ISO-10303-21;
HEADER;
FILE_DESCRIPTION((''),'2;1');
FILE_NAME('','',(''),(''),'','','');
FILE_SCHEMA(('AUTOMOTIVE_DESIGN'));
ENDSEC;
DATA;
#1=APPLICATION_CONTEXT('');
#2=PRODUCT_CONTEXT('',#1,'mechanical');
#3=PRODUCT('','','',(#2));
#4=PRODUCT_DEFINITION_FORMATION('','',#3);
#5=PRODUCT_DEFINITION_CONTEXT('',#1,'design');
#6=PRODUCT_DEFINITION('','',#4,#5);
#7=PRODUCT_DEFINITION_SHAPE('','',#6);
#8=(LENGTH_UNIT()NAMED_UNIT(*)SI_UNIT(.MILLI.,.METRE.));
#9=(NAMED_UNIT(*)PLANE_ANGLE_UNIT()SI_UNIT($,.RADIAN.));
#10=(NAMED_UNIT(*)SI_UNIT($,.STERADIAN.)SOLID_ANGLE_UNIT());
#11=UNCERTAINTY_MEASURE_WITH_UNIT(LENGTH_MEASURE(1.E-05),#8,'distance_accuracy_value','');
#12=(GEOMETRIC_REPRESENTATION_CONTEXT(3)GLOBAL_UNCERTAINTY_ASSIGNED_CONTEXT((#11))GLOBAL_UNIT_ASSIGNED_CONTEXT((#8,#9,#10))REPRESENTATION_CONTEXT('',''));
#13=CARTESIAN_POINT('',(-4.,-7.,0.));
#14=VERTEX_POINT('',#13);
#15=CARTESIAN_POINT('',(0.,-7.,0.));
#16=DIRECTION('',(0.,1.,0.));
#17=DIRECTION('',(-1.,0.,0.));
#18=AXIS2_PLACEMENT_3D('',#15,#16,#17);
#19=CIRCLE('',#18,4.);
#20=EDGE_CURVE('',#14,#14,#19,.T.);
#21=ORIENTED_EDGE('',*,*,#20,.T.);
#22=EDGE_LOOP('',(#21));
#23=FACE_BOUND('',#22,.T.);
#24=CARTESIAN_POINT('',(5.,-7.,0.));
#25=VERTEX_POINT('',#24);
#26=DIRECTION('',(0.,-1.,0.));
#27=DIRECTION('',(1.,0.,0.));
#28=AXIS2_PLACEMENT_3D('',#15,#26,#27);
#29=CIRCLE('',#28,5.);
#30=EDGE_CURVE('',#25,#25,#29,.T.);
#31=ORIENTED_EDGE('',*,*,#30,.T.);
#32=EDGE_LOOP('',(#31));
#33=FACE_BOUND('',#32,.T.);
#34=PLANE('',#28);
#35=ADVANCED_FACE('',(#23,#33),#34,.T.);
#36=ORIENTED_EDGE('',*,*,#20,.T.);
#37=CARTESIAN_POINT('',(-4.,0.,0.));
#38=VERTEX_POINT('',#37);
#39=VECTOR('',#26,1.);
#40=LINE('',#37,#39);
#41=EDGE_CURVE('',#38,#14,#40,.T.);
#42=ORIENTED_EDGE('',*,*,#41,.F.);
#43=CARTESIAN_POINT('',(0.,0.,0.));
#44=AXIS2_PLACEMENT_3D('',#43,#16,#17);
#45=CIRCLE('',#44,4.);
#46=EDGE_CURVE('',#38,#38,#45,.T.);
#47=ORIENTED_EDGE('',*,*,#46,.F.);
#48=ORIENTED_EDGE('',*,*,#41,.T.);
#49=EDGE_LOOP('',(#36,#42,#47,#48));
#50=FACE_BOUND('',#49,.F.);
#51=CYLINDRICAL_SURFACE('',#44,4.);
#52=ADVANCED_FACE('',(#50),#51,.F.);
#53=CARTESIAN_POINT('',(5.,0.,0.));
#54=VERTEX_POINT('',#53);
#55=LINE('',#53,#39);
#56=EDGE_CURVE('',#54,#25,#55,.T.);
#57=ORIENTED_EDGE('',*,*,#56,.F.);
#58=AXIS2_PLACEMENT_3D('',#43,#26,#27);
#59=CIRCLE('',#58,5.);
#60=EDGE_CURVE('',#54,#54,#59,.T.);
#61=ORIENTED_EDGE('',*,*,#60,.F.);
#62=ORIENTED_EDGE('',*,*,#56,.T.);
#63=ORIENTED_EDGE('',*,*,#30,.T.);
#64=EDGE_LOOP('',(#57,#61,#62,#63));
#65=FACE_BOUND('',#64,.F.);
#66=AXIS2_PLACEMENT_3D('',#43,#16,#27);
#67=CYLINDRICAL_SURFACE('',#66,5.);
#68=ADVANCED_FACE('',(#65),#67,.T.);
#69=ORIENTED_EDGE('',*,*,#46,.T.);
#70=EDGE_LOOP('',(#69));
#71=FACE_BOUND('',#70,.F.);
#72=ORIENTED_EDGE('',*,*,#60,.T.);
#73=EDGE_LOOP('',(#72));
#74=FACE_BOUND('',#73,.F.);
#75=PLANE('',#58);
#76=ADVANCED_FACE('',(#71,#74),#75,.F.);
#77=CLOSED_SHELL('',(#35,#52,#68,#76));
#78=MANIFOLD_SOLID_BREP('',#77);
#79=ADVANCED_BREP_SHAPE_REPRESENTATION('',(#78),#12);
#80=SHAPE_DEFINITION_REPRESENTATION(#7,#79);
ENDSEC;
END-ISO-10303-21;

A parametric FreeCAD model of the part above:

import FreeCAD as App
import Part
import Sketcher
from FreeCAD import Vector

doc = App.newDocument("Part")
body = doc.addObject("PartDesign::Body", "Body")

sketch1 = body.newObject("Sketcher::SketchObject", "Sketch")
sketch1.AttachmentSupport = (doc.getObject("XZ_Plane"), [""])
sketch1.MapMode = "FlatFace"
sketch1.addGeometry([
    Part.Circle(Vector(0, 0, 0), Vector(0, 0, 1), 5),
    Part.Circle(Vector(0, 0, 0), Vector(0, 0, 1), 4),
], False)
sketch1.addConstraint([
    Sketcher.Constraint("Coincident", 0, 3, -1, 1),
    Sketcher.Constraint("Coincident", 1, 3, -1, 1),
    Sketcher.Constraint("Diameter", 0, 10.0),
    Sketcher.Constraint("Diameter", 1, 8.0),
])
pad1 = body.newObject("PartDesign::Pad", "Pad")
pad1.Profile = sketch1
pad1.Length = 7

doc.recompute()
